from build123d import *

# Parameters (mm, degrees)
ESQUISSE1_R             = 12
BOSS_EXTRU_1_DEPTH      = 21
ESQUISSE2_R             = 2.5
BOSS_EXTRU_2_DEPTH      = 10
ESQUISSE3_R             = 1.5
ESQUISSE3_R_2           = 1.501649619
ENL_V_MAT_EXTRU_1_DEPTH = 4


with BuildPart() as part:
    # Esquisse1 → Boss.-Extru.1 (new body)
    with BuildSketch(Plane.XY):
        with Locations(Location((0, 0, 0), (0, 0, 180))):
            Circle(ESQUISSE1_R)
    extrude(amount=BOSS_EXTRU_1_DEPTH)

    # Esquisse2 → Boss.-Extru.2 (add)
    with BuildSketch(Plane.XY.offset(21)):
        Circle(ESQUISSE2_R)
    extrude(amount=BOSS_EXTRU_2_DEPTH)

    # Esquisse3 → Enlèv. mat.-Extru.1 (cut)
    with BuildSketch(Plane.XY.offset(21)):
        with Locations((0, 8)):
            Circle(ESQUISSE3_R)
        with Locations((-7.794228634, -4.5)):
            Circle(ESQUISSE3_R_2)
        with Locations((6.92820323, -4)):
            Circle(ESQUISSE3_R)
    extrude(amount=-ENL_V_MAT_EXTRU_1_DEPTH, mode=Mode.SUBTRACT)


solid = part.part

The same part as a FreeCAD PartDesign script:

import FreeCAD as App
import Part
import Sketcher
from FreeCAD import Vector

doc = App.newDocument("Part")
params = doc.addObject("Spreadsheet::Sheet", "Params")
for row, (alias, value) in enumerate([
    ("sketch1_diameter", "24 mm"),
    ("pad1_length", "21 mm"),
    ("sketch2_diameter", "5 mm"),
    ("pad2_length", "10 mm"),
    ("sketch3_diameter", "3 mm"),
    ("pocket1_length", "4 mm"),
], start=1):
    params.set(f"A{row}", alias)
    params.set(f"B{row}", "=" + value)
    params.setAlias(f"B{row}", alias)

body = doc.addObject("PartDesign::Body", "Body")

# Sketch on XY plane
sketch1 = body.newObject("Sketcher::SketchObject", "Sketch")
sketch1.AttachmentSupport = (doc.getObject("XY_Plane"), [""])
sketch1.MapMode = "FlatFace"
sketch1.addGeometry(Part.Circle(Vector(0, 0, 0), Vector(0, 0, 1), 12), False)
sketch1.addConstraint(Sketcher.Constraint("Coincident", 0, 3, -1, 1))
sketch1.addConstraint(Sketcher.Constraint("Diameter", 0, 24.0))
sketch1.setExpression("Constraints[1]", "Params.sketch1_diameter")
pad1 = body.newObject("PartDesign::Pad", "Pad")
pad1.Profile = sketch1
pad1.setExpression("Length", "Params.pad1_length")

# Sketch on XY plane
sketch2 = body.newObject("Sketcher::SketchObject", "Sketch001")
sketch2.AttachmentSupport = (doc.getObject("XY_Plane"), [""])
sketch2.MapMode = "FlatFace"
sketch2.AttachmentOffset = App.Placement(Vector(0, 0, 21), App.Rotation())
sketch2.addGeometry(Part.Circle(Vector(0, 0, 0), Vector(0, 0, 1), 2.5), False)
sketch2.addConstraint(Sketcher.Constraint("Coincident", 0, 3, -1, 1))
sketch2.addConstraint(Sketcher.Constraint("Diameter", 0, 5.0))
sketch2.setExpression("Constraints[1]", "Params.sketch2_diameter")
pad2 = body.newObject("PartDesign::Pad", "Pad001")
pad2.Profile = sketch2
pad2.setExpression("Length", "Params.pad2_length")

# Sketch on XY plane
sketch3 = body.newObject("Sketcher::SketchObject", "Sketch002")
sketch3.AttachmentSupport = (doc.getObject("XY_Plane"), [""])
sketch3.MapMode = "FlatFace"
sketch3.AttachmentOffset = App.Placement(Vector(0, 0, 21), App.Rotation())
sketch3.addGeometry(Part.Circle(Vector(0, 8, 0), Vector(0, 0, 1), 1.5), False)
sketch3.addGeometry(Part.Circle(Vector(-7.794229, -4.5, 0), Vector(0, 0, 1), 1.50165), False)
sketch3.addGeometry(Part.Circle(Vector(6.928203, -4, 0), Vector(0, 0, 1), 1.5), False)
sketch3.addConstraint(Sketcher.Constraint("Equal", 0, 2))
sketch3.addConstraint(Sketcher.Constraint("PointOnObject", 0, 3, -2))
sketch3.addConstraint(Sketcher.Constraint("Diameter", 0, 3.0))
sketch3.addConstraint(Sketcher.Constraint("DistanceY", -1, 1, 0, 3, 8.0))
sketch3.addConstraint(Sketcher.Constraint("DistanceY", 2, 3, -1, 1, 4.0))
sketch3.addConstraint(Sketcher.Constraint("Diameter", 1, 3.003299))
sketch3.addConstraint(Sketcher.Constraint("DistanceY", 1, 3, -1, 1, 4.5))
sketch3.addConstraint(Sketcher.Constraint("DistanceX", 1, 3, -1, 1, 7.794229))
sketch3.addConstraint(Sketcher.Constraint("DistanceX", 1, 3, 2, 3, 14.722432))
sketch3.setExpression("Constraints[2]", "Params.sketch3_diameter")
pocket1 = body.newObject("PartDesign::Pocket", "Pocket")
pocket1.Profile = sketch3
pocket1.setExpression("Length", "Params.pocket1_length")

doc.recompute()
